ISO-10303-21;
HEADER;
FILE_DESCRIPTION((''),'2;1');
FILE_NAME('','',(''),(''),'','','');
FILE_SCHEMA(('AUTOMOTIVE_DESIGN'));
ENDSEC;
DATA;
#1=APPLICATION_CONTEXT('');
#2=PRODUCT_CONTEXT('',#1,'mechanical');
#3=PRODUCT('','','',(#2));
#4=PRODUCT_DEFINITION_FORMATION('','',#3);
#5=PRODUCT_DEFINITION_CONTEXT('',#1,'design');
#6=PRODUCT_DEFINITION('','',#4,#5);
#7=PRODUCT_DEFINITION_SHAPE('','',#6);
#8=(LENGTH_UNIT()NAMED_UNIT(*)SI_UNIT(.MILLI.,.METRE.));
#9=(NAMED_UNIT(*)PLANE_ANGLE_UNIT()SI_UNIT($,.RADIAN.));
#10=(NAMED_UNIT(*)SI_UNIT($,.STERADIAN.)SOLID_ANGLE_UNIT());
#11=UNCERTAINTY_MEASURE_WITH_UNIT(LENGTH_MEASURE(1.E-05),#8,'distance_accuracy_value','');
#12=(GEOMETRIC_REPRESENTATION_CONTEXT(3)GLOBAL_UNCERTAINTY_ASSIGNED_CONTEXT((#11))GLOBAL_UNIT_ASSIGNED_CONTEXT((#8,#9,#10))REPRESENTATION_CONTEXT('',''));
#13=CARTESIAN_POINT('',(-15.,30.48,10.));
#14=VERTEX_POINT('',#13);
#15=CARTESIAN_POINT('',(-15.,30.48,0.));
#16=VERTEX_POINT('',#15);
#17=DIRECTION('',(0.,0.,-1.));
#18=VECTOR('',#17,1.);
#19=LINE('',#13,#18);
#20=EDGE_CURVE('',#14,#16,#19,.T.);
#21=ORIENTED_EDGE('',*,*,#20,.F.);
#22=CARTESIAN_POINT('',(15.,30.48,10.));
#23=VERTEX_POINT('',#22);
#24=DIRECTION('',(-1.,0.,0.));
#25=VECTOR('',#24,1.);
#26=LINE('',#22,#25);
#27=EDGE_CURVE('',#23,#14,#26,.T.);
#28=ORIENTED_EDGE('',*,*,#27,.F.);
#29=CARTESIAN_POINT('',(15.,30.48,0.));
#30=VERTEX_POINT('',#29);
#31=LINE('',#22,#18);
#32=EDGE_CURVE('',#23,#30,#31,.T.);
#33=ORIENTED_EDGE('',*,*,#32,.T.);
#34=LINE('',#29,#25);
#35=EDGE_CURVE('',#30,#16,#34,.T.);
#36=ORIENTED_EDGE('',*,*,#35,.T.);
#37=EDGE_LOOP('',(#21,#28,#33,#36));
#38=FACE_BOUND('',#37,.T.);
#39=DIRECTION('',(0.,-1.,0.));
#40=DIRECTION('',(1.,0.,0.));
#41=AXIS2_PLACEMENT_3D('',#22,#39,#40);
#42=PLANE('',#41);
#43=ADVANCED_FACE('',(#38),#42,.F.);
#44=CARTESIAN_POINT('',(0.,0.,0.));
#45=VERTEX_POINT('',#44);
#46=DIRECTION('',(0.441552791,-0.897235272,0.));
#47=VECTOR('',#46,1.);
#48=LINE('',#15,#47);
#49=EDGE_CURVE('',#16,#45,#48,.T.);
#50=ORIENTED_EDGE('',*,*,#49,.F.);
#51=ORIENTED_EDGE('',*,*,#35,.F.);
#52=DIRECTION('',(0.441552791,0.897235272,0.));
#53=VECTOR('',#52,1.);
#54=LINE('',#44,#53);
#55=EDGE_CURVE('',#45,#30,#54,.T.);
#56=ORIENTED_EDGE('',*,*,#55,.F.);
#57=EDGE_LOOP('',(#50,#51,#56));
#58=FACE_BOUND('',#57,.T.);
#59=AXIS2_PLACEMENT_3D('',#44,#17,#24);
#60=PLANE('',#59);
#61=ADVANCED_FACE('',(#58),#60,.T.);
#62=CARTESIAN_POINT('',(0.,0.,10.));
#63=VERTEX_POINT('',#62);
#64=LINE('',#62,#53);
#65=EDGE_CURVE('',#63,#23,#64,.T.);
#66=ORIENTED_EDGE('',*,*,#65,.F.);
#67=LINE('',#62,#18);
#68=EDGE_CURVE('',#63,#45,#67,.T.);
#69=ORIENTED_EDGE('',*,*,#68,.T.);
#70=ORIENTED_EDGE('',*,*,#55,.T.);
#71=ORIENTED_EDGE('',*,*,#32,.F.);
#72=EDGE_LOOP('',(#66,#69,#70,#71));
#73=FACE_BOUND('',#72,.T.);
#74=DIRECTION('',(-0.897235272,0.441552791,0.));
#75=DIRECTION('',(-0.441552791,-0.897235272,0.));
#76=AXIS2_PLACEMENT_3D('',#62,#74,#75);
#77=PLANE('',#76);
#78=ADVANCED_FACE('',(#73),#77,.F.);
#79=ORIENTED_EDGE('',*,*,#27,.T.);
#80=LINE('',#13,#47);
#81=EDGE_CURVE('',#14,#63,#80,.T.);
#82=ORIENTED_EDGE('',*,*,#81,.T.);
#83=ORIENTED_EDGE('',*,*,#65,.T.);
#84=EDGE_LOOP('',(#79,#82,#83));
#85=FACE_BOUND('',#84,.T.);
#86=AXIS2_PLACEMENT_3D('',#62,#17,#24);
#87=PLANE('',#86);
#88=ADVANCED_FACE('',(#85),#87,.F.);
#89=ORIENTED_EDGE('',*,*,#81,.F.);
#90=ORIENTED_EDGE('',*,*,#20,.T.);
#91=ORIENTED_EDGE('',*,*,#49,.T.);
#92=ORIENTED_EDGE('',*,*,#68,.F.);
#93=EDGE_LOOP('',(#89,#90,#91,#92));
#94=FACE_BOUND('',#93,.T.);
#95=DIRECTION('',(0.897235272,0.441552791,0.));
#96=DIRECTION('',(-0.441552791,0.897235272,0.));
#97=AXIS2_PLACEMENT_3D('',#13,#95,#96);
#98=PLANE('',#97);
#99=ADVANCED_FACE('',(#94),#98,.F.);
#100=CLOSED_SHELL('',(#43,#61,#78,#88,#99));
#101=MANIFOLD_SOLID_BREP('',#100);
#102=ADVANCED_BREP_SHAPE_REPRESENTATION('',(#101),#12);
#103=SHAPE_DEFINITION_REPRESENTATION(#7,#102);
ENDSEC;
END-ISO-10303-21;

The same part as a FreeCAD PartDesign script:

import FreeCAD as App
import Part
import Sketcher

V = App.Vector


def add_polygon(sketch, points):
    """Adds a closed chain of lines whose ends are joined by coincident constraints."""
    first, n = sketch.GeometryCount, len(points)
    for a, b in zip(points, points[1:] + points[:1]):
        sketch.addGeometry(Part.LineSegment(App.Vector(*a, 0), App.Vector(*b, 0)), False)
    for i in range(n):
        sketch.addConstraint(Sketcher.Constraint("Coincident", first + i, 2, first + (i + 1) % n, 1))

doc = App.newDocument("Part")
body = doc.addObject("PartDesign::Body", "Body")

sketch1 = body.newObject("Sketcher::SketchObject", "Sketch")
sketch1.AttachmentSupport = (doc.getObject("XY_Plane"), [""])
sketch1.MapMode = "FlatFace"
add_polygon(sketch1, [(0, 0), (15, 30), (-15, 30)])
sketch1.addConstraint(Sketcher.Constraint("Horizontal", 1))
sketch1.addConstraint(Sketcher.Constraint("Coincident", 2, 2, -1, 1))
sketch1.addConstraint(Sketcher.Constraint("Equal", 0, 2))
sketch1.addConstraint(Sketcher.Constraint("DistanceX", 1, 2, 1, 1, 30.0))
sketch1.addConstraint(Sketcher.Constraint("DistanceY", -1, 1, 0, 2, 30.48))
pad1 = body.newObject("PartDesign::Pad", "Pad")
pad1.Profile = sketch1
pad1.Length = 10

doc.recompute()
